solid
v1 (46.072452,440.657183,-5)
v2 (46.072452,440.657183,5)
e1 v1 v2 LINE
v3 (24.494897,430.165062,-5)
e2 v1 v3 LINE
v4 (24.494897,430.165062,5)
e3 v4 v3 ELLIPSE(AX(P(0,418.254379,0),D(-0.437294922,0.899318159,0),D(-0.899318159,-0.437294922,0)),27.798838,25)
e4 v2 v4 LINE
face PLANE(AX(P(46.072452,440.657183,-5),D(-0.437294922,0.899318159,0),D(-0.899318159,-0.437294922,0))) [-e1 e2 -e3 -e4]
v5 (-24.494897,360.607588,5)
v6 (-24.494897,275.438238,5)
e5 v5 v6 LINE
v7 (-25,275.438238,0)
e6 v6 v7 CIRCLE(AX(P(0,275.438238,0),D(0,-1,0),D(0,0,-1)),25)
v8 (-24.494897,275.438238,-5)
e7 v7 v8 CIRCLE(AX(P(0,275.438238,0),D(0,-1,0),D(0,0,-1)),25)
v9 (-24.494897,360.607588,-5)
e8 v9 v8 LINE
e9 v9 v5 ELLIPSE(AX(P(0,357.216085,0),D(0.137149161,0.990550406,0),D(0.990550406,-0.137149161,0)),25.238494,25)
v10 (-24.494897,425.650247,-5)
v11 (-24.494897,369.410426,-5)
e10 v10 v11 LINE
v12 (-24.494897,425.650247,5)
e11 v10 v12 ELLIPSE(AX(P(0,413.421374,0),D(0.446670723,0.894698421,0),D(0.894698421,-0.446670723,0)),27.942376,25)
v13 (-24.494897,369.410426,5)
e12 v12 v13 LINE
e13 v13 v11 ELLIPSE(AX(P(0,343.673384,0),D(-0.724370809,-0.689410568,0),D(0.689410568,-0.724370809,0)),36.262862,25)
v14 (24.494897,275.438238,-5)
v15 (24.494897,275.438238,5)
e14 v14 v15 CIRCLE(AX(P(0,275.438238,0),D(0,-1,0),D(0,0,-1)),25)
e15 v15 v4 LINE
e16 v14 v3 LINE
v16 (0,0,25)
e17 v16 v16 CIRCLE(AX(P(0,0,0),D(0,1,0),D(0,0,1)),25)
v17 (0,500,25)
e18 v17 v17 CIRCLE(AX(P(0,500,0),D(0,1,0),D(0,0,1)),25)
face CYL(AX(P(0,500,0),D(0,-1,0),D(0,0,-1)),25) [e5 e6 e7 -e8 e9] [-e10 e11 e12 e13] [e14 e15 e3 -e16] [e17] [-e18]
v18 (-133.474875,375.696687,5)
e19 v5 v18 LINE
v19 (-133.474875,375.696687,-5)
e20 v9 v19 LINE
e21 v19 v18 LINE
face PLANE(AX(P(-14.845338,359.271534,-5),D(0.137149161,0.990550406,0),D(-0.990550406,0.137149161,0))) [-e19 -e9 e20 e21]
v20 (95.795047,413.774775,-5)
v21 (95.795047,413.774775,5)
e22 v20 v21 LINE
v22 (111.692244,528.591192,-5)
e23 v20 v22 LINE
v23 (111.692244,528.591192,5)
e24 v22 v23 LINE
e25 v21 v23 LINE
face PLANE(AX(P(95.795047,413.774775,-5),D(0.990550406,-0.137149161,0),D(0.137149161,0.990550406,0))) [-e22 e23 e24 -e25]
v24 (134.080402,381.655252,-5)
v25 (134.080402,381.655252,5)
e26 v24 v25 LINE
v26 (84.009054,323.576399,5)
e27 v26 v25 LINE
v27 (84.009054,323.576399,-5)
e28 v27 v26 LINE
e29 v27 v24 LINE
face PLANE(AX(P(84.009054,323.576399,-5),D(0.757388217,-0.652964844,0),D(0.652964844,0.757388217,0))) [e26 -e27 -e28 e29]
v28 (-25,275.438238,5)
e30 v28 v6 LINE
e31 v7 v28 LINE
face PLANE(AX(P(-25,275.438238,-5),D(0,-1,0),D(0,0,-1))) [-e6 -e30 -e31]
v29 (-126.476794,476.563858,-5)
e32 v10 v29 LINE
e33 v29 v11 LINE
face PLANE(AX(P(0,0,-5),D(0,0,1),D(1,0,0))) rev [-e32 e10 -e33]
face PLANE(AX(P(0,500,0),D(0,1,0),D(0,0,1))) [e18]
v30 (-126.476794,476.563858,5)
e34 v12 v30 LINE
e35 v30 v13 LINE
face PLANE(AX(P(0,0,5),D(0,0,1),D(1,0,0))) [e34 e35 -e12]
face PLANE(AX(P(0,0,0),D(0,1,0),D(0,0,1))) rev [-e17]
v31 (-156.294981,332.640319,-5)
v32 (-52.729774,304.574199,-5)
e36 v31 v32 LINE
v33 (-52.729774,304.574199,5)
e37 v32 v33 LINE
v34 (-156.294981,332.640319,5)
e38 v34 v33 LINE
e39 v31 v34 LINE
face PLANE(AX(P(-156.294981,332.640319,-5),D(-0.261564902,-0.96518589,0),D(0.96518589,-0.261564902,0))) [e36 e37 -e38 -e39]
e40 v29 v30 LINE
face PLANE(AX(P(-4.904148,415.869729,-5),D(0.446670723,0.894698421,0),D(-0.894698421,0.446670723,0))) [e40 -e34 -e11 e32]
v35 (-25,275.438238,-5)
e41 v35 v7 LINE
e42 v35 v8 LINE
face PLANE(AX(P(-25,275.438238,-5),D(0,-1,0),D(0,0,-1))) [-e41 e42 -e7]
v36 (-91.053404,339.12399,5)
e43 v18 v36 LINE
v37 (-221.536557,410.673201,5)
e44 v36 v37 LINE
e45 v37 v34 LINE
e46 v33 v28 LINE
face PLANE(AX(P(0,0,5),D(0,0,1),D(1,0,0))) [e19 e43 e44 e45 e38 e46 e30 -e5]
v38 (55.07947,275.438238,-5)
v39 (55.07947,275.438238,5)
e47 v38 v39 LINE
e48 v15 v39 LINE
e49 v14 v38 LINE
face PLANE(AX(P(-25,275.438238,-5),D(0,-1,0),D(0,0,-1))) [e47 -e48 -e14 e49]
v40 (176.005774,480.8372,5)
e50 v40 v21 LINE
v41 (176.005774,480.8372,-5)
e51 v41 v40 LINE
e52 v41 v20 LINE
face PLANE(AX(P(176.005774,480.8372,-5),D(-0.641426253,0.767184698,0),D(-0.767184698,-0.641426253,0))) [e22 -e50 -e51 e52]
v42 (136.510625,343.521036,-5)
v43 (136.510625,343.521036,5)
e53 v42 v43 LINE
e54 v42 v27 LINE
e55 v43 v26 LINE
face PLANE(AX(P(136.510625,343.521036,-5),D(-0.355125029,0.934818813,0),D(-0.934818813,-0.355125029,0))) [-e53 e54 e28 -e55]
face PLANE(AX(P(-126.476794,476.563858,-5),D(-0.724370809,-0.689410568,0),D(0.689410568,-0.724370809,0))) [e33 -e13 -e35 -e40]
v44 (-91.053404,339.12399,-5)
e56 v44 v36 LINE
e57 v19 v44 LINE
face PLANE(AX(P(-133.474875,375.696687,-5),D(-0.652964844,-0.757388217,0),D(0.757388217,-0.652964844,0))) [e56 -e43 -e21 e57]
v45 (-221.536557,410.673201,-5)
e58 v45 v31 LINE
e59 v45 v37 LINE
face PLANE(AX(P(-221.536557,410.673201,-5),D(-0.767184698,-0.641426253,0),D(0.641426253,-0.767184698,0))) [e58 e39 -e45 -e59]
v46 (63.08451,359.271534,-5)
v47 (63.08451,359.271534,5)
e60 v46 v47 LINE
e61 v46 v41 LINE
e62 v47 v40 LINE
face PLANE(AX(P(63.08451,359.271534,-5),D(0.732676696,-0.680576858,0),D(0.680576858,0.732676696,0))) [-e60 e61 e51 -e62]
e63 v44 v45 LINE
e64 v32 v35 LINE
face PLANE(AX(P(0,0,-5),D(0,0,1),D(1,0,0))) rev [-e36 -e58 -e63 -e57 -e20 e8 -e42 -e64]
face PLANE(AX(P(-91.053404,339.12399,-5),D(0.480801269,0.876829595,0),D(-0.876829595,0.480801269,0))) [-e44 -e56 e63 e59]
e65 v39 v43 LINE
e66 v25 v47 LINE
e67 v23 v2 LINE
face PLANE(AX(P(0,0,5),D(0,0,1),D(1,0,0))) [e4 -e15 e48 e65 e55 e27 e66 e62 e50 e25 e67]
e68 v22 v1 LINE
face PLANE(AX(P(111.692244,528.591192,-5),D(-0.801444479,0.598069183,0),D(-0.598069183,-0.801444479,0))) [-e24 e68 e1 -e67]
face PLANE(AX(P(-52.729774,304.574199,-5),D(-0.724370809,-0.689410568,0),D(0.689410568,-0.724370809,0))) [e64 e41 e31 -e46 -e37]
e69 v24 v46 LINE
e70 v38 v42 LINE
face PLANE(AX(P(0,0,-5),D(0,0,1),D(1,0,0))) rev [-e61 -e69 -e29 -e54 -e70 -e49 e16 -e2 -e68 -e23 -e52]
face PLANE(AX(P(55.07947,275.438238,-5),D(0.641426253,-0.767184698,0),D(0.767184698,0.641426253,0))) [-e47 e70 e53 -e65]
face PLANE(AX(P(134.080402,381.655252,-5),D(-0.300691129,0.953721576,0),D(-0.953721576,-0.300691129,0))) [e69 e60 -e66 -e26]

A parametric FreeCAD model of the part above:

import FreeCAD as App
import Part
import Sketcher

doc = App.newDocument("Part")
body = doc.addObject("PartDesign::Body", "Body")

sketch1 = body.newObject("Sketcher::SketchObject", "Sketch")
sketch1.AttachmentSupport = (doc.getObject("XZ_Plane"), [""])
sketch1.MapMode = "FlatFace"
sketch1.addGeometry(Part.Circle(App.Vector(0, 0, 0), App.Vector(0, 0, 1), 25), False)
sketch1.addConstraint(Sketcher.Constraint("Coincident", 0, 3, -1, 1))
sketch1.addConstraint(Sketcher.Constraint("Diameter", 0, 50.0))
pad1 = body.newObject("PartDesign::Pad", "Pad")
pad1.Profile = sketch1
pad1.Length = 500
pad1.Reversed = True

sketch2 = body.newObject("Sketcher::SketchObject", "Sketch001")
sketch2.AttachmentSupport = (doc.getObject("XY_Plane"), [""])
sketch2.MapMode = "FlatFace"
sketch2.addGeometry(Part.LineSegment(App.Vector(-4.904148, 415.869729, 0), App.Vector(-126.476794, 476.563858, 0)), False)
sketch2.addGeometry(Part.LineSegment(App.Vector(-126.476794, 476.563858, 0), App.Vector(-14.845338, 359.271534, 0)), False)
sketch2.addGeometry(Part.LineSegment(App.Vector(-14.845338, 359.271534, 0), App.Vector(-133.474875, 375.696687, 0)), False)
sketch2.addGeometry(Part.LineSegment(App.Vector(-133.474875, 375.696687, 0), App.Vector(-91.053404, 339.12399, 0)), False)
sketch2.addGeometry(Part.LineSegment(App.Vector(-91.053404, 339.12399, 0), App.Vector(-221.536557, 410.673201, 0)), False)
sketch2.addGeometry(Part.LineSegment(App.Vector(-221.536557, 410.673201, 0), App.Vector(-156.294981, 332.640319, 0)), False)
sketch2.addGeometry(Part.LineSegment(App.Vector(-156.294981, 332.640319, 0), App.Vector(-52.729774, 304.574199, 0)), False)
sketch2.addGeometry(Part.LineSegment(App.Vector(-52.729774, 304.574199, 0), App.Vector(-25, 275.438238, 0)), False)
sketch2.addGeometry(Part.LineSegment(App.Vector(-25, 275.438238, 0), App.Vector(55.07947, 275.438238, 0)), False)
sketch2.addGeometry(Part.LineSegment(App.Vector(55.07947, 275.438238, 0), App.Vector(136.510625, 343.521036, 0)), False)
sketch2.addGeometry(Part.LineSegment(App.Vector(136.510625, 343.521036, 0), App.Vector(84.009054, 323.576399, 0)), False)
sketch2.addGeometry(Part.LineSegment(App.Vector(84.009054, 323.576399, 0), App.Vector(134.080402, 381.655252, 0)), False)
sketch2.addGeometry(Part.LineSegment(App.Vector(134.080402, 381.655252, 0), App.Vector(63.08451, 359.271534, 0)), False)
sketch2.addGeometry(Part.LineSegment(App.Vector(63.08451, 359.271534, 0), App.Vector(176.005774, 480.8372, 0)), False)
sketch2.addGeometry(Part.LineSegment(App.Vector(176.005774, 480.8372, 0), App.Vector(95.795047, 413.774775, 0)), False)
sketch2.addGeometry(Part.LineSegment(App.Vector(95.795047, 413.774775, 0), App.Vector(111.692244, 528.591192, 0)), False)
sketch2.addGeometry(Part.LineSegment(App.Vector(111.692244, 528.591192, 0), App.Vector(46.072452, 440.657183, 0)), False)
sketch2.addGeometry(Part.LineSegment(App.Vector(46.072452, 440.657183, 0), App.Vector(-4.904148, 415.869729, 0)), False)
sketch2.addConstraint(Sketcher.Constraint("Coincident", 0, 2, 1, 1))
sketch2.addConstraint(Sketcher.Constraint("Coincident", 1, 2, 2, 1))
sketch2.addConstraint(Sketcher.Constraint("Coincident", 2, 2, 3, 1))
sketch2.addConstraint(Sketcher.Constraint("Coincident", 3, 2, 4, 1))
sketch2.addConstraint(Sketcher.Constraint("Coincident", 4, 2, 5, 1))
sketch2.addConstraint(Sketcher.Constraint("Coincident", 5, 2, 6, 1))
sketch2.addConstraint(Sketcher.Constraint("Coincident", 6, 2, 7, 1))
sketch2.addConstraint(Sketcher.Constraint("Coincident", 7, 2, 8, 1))
sketch2.addConstraint(Sketcher.Constraint("Coincident", 8, 2, 9, 1))
sketch2.addConstraint(Sketcher.Constraint("Coincident", 9, 2, 10, 1))
sketch2.addConstraint(Sketcher.Constraint("Coincident", 10, 2, 11, 1))
sketch2.addConstraint(Sketcher.Constraint("Coincident", 11, 2, 12, 1))
sketch2.addConstraint(Sketcher.Constraint("Coincident", 12, 2, 13, 1))
sketch2.addConstraint(Sketcher.Constraint("Coincident", 13, 2, 14, 1))
sketch2.addConstraint(Sketcher.Constraint("Coincident", 14, 2, 15, 1))
sketch2.addConstraint(Sketcher.Constraint("Coincident", 15, 2, 16, 1))
sketch2.addConstraint(Sketcher.Constraint("Coincident", 16, 2, 17, 1))
sketch2.addConstraint(Sketcher.Constraint("Coincident", 17, 2, 0, 1))
sketch2.addConstraint(Sketcher.Constraint("Horizontal", 8))
sketch2.addConstraint(Sketcher.Constraint("Parallel", 1, 7))
sketch2.addConstraint(Sketcher.Constraint("Perpendicular", 5, 9))
sketch2.addConstraint(Sketcher.Constraint("Perpendicular", 3, 11))
sketch2.addConstraint(Sketcher.Constraint("Parallel", 9, 14))
sketch2.addConstraint(Sketcher.Constraint("Perpendicular", 2, 15))
sketch2.addConstraint(Sketcher.Constraint("Horizontal", 1, 2, 12, 2))
sketch2.addConstraint(Sketcher.Constraint("DistanceX", 7, 2, -1, 1, 25.0))
sketch2.addConstraint(Sketcher.Constraint("Distance", 12, 74.4409))
sketch2.addConstraint(Sketcher.Constraint("Distance", 16, 109.719401))
sketch2.addConstraint(Sketcher.Constraint("DistanceX", 8, 1, 8, 2, 80.07947))
sketch2.addConstraint(Sketcher.Constraint("DistanceY", -1, 1, 4, 2, 410.673201))
sketch2.addConstraint(Sketcher.Constraint("DistanceY", -1, 1, 6, 2, 304.574199))
sketch2.addConstraint(Sketcher.Constraint("DistanceY", -1, 1, 10, 2, 323.576399))
sketch2.addConstraint(Sketcher.Constraint("DistanceY", -1, 1, 13, 2, 480.8372))
sketch2.addConstraint(Sketcher.Constraint("DistanceX", 2, 2, 6, 2, 80.745101))
sketch2.addConstraint(Sketcher.Constraint("DistanceY", 9, 2, 1, 2, 15.750498))
sketch2.addConstraint(Sketcher.Constraint("DistanceX", 6, 2, 9, 2, 189.240399))
sketch2.addConstraint(Sketcher.Constraint("DistanceX", 17, 2, 16, 2, 50.976599))
sketch2.addConstraint(Sketcher.Constraint("Distance", 1, 161.923041))
sketch2.addConstraint(Sketcher.Constraint("Distance", 2, 119.761232))
sketch2.addConstraint(Sketcher.Constraint("Distance", 4, 148.812441))
sketch2.addConstraint(Sketcher.Constraint("Distance", 7, 40.222439))
sketch2.addConstraint(Sketcher.Constraint("Distance", 9, 106.14283))
sketch2.addConstraint(Sketcher.Constraint("Distance", 11, 76.683069))
sketch2.addConstraint(Sketcher.Constraint("Distance", 13, 165.919929))
sketch2.addConstraint(Sketcher.Constraint("Distance", 17, 56.683609))
sketch2.addConstraint(Sketcher.Constraint("DistanceY", -1, 1, 0, 2, 476.563858))
sketch2.addConstraint(Sketcher.Constraint("DistanceX", 1, 2, -1, 1, 14.845338))
sketch2.addConstraint(Sketcher.Constraint("DistanceY", -1, 1, 3, 2, 339.12399))
sketch2.addConstraint(Sketcher.Constraint("DistanceX", 5, 2, -1, 1, 156.294981))
sketch2.addConstraint(Sketcher.Constraint("DistanceY", -1, 1, 5, 2, 332.640319))
sketch2.addConstraint(Sketcher.Constraint("DistanceX", -1, 1, 12, 2, 63.08451))
sketch2.addConstraint(Sketcher.Constraint("DistanceY", -1, 1, 15, 2, 528.591192))
sketch2.addConstraint(Sketcher.Constraint("DistanceX", -1, 1, 16, 2, 46.072452))
sketch2.addConstraint(Sketcher.Constraint("DistanceY", -1, 1, 17, 2, 415.869729))
pad2 = body.newObject("PartDesign::Pad", "Pad001")
pad2.Profile = sketch2
pad2.Type = "TwoLengths"
pad2.Length = 5
pad2.Length2 = 5

doc.recompute()
